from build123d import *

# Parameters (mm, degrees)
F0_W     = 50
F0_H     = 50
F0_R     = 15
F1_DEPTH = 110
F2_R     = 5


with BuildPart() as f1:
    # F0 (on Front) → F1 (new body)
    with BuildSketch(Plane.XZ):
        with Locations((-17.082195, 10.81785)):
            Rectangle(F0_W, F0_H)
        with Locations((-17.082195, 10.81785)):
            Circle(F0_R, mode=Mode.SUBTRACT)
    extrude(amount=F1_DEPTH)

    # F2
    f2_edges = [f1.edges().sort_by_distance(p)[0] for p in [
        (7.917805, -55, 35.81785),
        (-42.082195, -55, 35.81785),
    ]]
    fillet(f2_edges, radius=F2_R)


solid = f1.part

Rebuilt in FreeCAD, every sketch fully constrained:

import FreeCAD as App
import Part
import Sketcher
Q = App.Units.Quantity


def edges_at(feature, points):
    """Names of the edges that pass closest to the given points."""
    edges = feature.Shape.Edges
    near = lambda p: min(range(len(edges)), key=lambda i: edges[i].distToShape(Part.Vertex(*p))[0])
    return sorted({f"Edge{near(p) + 1}" for p in points})

doc = App.newDocument("Part")
body = doc.addObject("PartDesign::Body", "Body")

# Sketch on XZ plane
sketch1 = body.newObject("Sketcher::SketchObject", "Sketch")
sketch1.AttachmentSupport = (doc.getObject("XZ_Plane"), [""])
sketch1.MapMode = "FlatFace"
sketch1.addGeometry([
    Part.LineSegment(App.Vector(-42, 36, 0), App.Vector(-42, -14, 0)),  # 0
    Part.LineSegment(App.Vector(-42, -14, 0), App.Vector(8, -14, 0)),  # 1
    Part.LineSegment(App.Vector(8, -14, 0), App.Vector(8, 36, 0)),  # 2
    Part.LineSegment(App.Vector(8, 36, 0), App.Vector(-42, 36, 0)),  # 3
    Part.Circle(App.Vector(-17, 11, 0), App.Vector(0, 0, 1), 15),  # 4
], False)
sketch1.addConstraint([
    Sketcher.Constraint("Coincident", 0, 2, 1, 1),
    Sketcher.Constraint("Coincident", 1, 2, 2, 1),
    Sketcher.Constraint("Coincident", 2, 2, 3, 1),
    Sketcher.Constraint("Coincident", 3, 2, 0, 1),
    Sketcher.Constraint("Vertical", 0),
    Sketcher.Constraint("Horizontal", 1),
    Sketcher.Constraint("Vertical", 2),
    Sketcher.Constraint("Horizontal", 3),
    Sketcher.Constraint("Equal", 3, 0),
    Sketcher.Constraint("Diameter", 4, Q("30 mm")),
    Sketcher.Constraint("DistanceX", 1, 1, 1, 2, Q("50 mm")),
    Sketcher.Constraint("DistanceX", 0, 2, 4, 3, Q("25 mm")),
    Sketcher.Constraint("DistanceY", 0, 2, 4, 3, Q("25 mm")),
    Sketcher.Constraint("DistanceY", -1, 1, 4, 3, Q("10.81785 mm")),
    Sketcher.Constraint("DistanceX", 4, 3, -1, 1, Q("17.082195 mm")),
])
pad1 = body.newObject("PartDesign::Pad", "Pad")
pad1.Profile = sketch1
pad1.Length = 110
doc.recompute()

fillet = body.newObject("PartDesign::Fillet", "Fillet")
fillet.Base = (pad1, edges_at(pad1, [(7.918, -55, 35.818), (-42.082, -55, 35.818)]))
fillet.Radius = 5

doc.recompute()
